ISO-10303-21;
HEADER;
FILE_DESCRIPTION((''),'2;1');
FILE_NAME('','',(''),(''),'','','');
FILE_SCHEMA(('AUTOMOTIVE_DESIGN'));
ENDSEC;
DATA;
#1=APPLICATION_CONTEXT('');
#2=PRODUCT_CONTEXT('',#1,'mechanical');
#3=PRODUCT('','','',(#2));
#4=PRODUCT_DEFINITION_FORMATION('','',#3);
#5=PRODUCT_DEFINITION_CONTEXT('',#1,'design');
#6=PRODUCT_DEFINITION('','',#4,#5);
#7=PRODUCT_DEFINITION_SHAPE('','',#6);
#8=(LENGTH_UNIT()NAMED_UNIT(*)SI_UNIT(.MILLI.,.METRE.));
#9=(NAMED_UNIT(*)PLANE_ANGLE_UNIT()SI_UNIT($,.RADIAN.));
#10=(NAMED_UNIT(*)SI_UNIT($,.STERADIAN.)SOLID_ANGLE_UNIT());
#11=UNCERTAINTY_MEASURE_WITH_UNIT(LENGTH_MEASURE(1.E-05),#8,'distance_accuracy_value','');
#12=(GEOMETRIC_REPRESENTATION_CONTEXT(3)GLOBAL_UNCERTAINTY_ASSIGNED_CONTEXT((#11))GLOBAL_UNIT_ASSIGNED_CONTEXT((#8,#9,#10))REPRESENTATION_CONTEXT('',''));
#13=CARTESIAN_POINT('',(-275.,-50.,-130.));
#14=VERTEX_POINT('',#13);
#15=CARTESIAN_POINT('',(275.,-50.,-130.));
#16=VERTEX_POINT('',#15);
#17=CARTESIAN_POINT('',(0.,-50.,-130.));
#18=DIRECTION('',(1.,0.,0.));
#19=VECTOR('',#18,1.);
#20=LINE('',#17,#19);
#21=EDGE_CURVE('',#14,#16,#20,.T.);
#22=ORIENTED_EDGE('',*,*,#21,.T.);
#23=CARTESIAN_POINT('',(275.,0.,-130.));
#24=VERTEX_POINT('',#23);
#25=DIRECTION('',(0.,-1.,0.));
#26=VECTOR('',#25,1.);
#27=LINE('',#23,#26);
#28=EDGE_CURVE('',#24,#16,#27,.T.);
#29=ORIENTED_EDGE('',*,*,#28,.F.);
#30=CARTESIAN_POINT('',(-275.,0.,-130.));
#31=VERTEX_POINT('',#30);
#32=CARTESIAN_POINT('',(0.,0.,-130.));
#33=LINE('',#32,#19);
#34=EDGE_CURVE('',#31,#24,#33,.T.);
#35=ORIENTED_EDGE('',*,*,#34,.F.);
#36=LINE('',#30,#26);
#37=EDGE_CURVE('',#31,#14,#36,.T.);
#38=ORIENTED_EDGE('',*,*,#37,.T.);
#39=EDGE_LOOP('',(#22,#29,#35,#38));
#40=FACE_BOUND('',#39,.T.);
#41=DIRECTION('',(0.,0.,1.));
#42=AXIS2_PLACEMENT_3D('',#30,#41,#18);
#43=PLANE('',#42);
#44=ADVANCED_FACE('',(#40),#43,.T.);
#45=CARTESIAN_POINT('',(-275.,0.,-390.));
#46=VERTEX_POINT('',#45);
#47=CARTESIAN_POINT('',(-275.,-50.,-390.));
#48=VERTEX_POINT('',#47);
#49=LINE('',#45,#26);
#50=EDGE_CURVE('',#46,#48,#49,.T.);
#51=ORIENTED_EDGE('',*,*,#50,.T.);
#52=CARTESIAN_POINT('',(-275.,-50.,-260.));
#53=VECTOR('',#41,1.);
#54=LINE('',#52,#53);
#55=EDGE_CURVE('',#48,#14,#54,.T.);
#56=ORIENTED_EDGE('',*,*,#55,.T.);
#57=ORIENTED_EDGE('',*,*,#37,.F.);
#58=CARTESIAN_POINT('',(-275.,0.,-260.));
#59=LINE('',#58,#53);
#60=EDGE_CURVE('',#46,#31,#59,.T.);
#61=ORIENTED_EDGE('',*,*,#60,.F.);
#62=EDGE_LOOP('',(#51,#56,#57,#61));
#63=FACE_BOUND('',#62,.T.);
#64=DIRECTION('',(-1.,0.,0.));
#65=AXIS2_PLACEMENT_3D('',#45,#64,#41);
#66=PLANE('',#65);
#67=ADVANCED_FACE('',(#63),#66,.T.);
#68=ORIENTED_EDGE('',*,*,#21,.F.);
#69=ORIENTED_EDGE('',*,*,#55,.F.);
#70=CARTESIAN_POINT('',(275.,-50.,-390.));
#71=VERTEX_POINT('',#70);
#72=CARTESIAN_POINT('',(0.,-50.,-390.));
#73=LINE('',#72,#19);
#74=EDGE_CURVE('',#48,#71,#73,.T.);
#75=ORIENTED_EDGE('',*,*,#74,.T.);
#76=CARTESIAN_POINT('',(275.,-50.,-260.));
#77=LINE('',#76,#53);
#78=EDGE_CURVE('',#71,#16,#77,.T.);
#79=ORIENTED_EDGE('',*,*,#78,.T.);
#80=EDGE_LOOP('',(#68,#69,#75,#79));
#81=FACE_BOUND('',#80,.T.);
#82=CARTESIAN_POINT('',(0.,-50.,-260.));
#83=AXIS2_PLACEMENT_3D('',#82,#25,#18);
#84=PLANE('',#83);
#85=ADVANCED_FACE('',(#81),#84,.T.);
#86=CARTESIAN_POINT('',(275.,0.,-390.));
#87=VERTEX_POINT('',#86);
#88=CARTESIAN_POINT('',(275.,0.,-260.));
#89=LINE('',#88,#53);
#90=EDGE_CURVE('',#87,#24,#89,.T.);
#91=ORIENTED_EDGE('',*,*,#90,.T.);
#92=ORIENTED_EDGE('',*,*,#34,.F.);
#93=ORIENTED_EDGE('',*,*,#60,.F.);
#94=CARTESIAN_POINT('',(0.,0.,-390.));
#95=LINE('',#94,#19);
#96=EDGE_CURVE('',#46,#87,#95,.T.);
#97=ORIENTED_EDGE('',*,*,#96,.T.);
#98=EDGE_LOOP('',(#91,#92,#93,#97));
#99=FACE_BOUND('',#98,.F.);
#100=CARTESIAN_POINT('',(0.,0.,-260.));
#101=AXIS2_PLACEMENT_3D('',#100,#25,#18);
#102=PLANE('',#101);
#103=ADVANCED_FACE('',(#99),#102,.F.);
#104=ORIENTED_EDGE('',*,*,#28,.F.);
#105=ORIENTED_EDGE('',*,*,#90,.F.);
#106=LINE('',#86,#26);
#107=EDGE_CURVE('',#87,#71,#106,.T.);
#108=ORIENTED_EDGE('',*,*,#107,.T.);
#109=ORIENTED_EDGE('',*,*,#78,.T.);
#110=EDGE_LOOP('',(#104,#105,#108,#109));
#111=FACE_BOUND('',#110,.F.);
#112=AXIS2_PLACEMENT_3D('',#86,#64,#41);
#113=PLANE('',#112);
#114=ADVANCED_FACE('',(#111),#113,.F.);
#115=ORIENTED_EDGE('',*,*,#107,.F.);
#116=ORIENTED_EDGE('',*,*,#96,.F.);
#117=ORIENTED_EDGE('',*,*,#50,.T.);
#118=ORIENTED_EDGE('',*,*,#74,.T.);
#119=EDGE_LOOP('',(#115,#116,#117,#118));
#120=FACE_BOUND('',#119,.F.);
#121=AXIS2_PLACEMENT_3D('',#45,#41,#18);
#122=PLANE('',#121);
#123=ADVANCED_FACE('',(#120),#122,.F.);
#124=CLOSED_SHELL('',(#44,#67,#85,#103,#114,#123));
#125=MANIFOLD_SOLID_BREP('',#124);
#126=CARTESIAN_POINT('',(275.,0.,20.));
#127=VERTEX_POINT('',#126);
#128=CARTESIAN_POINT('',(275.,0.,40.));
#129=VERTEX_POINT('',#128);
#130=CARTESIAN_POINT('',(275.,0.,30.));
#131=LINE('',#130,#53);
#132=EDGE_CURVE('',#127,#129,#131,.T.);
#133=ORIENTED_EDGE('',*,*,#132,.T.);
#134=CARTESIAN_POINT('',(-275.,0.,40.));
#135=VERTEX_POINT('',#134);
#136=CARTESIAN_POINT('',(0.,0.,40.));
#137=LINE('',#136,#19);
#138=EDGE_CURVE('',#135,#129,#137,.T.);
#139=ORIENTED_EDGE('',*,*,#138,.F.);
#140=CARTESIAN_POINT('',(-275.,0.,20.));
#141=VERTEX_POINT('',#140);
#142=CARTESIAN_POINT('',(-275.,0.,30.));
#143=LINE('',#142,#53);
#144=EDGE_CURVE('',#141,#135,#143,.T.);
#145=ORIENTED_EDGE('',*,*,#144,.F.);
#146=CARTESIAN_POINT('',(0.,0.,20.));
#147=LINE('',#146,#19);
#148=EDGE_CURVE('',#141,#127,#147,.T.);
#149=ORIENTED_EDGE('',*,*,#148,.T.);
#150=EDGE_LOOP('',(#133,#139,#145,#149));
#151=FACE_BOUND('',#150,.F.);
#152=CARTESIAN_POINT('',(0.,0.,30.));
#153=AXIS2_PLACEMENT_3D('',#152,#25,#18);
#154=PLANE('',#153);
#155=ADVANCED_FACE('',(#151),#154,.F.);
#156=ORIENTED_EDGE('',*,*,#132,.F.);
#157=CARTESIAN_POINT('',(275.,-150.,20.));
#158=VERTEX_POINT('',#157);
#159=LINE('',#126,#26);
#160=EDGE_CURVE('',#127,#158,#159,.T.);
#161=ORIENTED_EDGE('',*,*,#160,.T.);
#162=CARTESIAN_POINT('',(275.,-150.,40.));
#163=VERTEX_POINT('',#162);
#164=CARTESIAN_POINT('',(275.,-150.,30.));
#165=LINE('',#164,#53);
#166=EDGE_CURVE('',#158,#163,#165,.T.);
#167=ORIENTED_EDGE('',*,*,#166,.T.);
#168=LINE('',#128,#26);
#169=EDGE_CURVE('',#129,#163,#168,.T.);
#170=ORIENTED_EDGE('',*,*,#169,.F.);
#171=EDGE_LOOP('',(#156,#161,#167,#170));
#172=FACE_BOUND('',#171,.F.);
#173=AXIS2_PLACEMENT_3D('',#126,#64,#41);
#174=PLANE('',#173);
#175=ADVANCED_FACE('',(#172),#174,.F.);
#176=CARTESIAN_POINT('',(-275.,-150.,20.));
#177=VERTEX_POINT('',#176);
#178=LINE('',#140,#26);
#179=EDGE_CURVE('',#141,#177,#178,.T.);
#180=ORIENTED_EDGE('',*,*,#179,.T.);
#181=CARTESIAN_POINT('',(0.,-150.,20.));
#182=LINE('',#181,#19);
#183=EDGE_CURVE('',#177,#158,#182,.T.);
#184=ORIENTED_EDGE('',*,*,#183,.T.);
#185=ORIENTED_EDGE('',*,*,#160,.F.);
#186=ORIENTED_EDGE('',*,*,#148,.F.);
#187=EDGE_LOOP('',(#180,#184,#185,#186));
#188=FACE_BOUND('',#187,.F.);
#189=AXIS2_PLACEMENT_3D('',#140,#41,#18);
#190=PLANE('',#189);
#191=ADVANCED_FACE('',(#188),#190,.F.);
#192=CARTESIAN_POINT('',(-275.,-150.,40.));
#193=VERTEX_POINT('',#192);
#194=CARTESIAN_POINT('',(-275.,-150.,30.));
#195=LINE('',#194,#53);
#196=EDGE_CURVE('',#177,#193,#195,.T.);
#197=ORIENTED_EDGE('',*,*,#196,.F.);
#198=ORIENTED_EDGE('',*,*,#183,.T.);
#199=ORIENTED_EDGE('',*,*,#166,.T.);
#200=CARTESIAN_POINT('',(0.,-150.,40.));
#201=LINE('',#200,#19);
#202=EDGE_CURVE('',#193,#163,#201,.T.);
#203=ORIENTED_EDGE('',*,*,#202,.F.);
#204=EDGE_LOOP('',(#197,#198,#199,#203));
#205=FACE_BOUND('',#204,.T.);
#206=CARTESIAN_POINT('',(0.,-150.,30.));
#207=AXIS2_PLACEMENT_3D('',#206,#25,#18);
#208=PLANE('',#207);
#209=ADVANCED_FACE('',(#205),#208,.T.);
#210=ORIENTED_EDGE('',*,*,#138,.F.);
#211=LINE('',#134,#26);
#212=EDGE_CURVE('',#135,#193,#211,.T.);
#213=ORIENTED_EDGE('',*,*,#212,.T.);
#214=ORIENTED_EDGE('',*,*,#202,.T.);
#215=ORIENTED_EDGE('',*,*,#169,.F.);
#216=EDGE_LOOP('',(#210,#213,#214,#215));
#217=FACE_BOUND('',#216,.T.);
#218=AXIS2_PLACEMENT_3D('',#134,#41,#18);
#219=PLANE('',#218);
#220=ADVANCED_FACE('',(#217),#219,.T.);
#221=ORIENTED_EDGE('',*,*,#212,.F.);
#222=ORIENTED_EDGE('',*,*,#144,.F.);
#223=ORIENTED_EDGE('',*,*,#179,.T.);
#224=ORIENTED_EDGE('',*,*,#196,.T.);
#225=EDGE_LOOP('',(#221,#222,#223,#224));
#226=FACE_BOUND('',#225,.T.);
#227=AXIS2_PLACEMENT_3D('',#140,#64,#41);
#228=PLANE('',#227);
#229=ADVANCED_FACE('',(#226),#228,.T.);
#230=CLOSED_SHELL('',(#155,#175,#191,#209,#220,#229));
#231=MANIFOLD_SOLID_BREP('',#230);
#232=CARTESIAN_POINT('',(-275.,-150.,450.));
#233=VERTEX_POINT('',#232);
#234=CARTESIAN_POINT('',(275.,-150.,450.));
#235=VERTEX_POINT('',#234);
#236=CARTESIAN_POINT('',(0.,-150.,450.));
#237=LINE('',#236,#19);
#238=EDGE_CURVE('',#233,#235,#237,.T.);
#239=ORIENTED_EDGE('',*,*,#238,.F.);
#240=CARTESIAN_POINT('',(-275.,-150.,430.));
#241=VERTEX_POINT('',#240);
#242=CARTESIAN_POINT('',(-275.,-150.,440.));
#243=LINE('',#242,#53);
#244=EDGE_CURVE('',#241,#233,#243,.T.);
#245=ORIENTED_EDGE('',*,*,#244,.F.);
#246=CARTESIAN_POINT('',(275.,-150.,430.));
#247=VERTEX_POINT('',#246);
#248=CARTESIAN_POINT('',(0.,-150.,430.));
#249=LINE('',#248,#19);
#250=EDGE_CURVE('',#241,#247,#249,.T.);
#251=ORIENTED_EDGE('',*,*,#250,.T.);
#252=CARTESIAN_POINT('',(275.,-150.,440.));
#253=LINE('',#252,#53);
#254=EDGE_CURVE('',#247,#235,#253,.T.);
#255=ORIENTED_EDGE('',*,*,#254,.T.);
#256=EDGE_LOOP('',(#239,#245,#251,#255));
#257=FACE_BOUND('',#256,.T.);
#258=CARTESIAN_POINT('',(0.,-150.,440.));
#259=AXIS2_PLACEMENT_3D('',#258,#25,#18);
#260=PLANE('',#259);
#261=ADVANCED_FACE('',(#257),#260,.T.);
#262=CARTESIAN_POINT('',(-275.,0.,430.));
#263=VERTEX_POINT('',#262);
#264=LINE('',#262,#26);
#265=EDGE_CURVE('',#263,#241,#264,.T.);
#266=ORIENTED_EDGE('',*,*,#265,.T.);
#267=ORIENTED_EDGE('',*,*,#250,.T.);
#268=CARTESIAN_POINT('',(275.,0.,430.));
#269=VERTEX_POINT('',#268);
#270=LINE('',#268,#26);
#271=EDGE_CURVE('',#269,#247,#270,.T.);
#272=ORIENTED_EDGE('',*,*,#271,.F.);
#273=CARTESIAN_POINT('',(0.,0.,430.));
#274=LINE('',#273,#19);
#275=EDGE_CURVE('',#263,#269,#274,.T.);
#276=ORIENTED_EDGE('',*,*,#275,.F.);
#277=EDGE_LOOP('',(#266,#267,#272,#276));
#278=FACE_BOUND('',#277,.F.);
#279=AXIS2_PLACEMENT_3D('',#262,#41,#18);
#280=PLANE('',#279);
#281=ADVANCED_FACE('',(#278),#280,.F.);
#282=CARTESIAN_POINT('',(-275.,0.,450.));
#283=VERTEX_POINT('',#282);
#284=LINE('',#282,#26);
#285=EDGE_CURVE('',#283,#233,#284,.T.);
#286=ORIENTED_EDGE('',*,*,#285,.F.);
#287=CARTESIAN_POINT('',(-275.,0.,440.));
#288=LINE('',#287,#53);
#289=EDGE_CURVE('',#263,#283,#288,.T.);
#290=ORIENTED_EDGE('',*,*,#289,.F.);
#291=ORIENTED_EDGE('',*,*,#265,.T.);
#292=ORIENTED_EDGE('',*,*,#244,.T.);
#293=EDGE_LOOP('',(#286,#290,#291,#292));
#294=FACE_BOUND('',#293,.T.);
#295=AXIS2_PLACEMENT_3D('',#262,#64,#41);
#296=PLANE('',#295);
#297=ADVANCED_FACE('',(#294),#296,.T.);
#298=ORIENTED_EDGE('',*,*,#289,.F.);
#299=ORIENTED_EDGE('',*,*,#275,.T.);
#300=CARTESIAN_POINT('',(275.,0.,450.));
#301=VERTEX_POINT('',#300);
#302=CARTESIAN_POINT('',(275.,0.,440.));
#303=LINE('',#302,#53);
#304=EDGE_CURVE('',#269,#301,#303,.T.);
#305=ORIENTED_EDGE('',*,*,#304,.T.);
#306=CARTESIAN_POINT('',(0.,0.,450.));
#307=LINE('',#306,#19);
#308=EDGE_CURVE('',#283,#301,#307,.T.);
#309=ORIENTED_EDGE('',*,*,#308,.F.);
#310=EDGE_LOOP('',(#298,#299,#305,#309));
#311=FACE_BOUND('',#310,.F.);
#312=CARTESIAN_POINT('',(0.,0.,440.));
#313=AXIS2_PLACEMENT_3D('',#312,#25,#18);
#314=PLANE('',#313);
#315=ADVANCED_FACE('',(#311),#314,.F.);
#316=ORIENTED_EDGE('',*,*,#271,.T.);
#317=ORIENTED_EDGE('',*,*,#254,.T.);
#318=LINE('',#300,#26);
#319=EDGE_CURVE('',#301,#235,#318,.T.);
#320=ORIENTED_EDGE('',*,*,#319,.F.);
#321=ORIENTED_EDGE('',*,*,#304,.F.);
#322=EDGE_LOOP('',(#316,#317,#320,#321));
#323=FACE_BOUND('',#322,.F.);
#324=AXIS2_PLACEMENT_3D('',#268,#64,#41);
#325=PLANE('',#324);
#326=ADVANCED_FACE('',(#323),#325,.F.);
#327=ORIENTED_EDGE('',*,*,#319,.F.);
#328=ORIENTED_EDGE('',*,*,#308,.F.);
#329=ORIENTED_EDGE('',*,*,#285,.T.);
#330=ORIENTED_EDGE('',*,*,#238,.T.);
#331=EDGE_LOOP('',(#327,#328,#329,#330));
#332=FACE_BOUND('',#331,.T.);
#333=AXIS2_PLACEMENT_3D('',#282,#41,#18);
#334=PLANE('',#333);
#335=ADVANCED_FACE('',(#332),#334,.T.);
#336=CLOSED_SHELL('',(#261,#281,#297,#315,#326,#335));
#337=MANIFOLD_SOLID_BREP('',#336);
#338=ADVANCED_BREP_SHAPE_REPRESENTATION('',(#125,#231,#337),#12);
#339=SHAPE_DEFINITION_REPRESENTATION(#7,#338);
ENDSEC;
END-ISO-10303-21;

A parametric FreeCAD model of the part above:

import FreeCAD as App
import Part
import Sketcher

V = App.Vector


def add_polygon(sketch, points):
    """Adds a closed chain of lines whose ends are joined by coincident constraints."""
    first, n = sketch.GeometryCount, len(points)
    for a, b in zip(points, points[1:] + points[:1]):
        sketch.addGeometry(Part.LineSegment(App.Vector(*a, 0), App.Vector(*b, 0)), False)
    for i in range(n):
        sketch.addConstraint(Sketcher.Constraint("Coincident", first + i, 2, first + (i + 1) % n, 1))

doc = App.newDocument("Part")
params = doc.addObject("Spreadsheet::Sheet", "Params")
for row, (alias, value) in enumerate([
    ("sketch1_width", "550 mm"),
    ("sketch1_height", "20 mm"),
    ("pad1_length", "150 mm"),
    ("sketch2_width", "550 mm"),
    ("sketch2_height", "260 mm"),
    ("pad2_length", "50 mm"),
], start=1):
    params.set(f"A{row}", alias)
    params.set(f"B{row}", "=" + value)
    params.setAlias(f"B{row}", alias)

body = doc.addObject("PartDesign::Body", "Body")
body.AllowCompound = True

# Sketch on XZ plane
sketch1 = body.newObject("Sketcher::SketchObject", "Sketch")
sketch1.AttachmentSupport = (doc.getObject("XZ_Plane"), [""])
sketch1.MapMode = "FlatFace"
add_polygon(sketch1, [(-275, 450), (-275, 430), (275, 430), (275, 450)])  # lines 0-3
add_polygon(sketch1, [(-275, 40), (-275, 20), (275, 20), (275, 40)])  # lines 4-7
sketch1.addConstraint([
    Sketcher.Constraint("Vertical", 0),
    Sketcher.Constraint("Horizontal", 1),
    Sketcher.Constraint("Vertical", 2),
    Sketcher.Constraint("Horizontal", 3),
    Sketcher.Constraint("Vertical", 4),
    Sketcher.Constraint("Horizontal", 5),
    Sketcher.Constraint("Vertical", 6),
    Sketcher.Constraint("Horizontal", 7),
    Sketcher.Constraint("Vertical", 3, 2, 4, 2),
    Sketcher.Constraint("Vertical", 2, 2, 5, 2),
    Sketcher.Constraint("Equal", 2, 4),
    Sketcher.Constraint("DistanceX", 1, 1, 1, 2, 550.0),
    Sketcher.Constraint("DistanceY", 0, 2, 0, 1, 20.0),
    Sketcher.Constraint("DistanceX", 0, 2, -1, 1, 275.0),
    Sketcher.Constraint("DistanceY", -1, 1, 0, 2, 430.0),
    Sketcher.Constraint("DistanceY", -1, 1, 4, 2, 20.0),
])
sketch1.setExpression("Constraints[19]", "Params.sketch1_width")
sketch1.setExpression("Constraints[20]", "Params.sketch1_height")
pad1 = body.newObject("PartDesign::Pad", "Pad")
pad1.Profile = sketch1
pad1.setExpression("Length", "Params.pad1_length")
body2 = doc.addObject("PartDesign::Body", "Body001")

# Sketch on XZ plane
sketch2 = body2.newObject("Sketcher::SketchObject", "Sketch001")
sketch2.AttachmentSupport = (doc.getObject("XZ_Plane001"), [""])
sketch2.MapMode = "FlatFace"
add_polygon(sketch2, [(-275, -130), (-275, -390), (275, -390), (275, -130)])  # lines 0-3
sketch2.addConstraint([
    Sketcher.Constraint("Vertical", 0),
    Sketcher.Constraint("Horizontal", 1),
    Sketcher.Constraint("Vertical", 2),
    Sketcher.Constraint("Horizontal", 3),
    Sketcher.Constraint("DistanceX", 1, 1, 1, 2, 550.0),
    Sketcher.Constraint("DistanceY", 0, 2, 0, 1, 260.0),
    Sketcher.Constraint("DistanceX", 0, 2, -1, 1, 275.0),
    Sketcher.Constraint("DistanceY", 0, 2, -1, 1, 390.0),
])
sketch2.setExpression("Constraints[8]", "Params.sketch2_width")
sketch2.setExpression("Constraints[9]", "Params.sketch2_height")
pad2 = body2.newObject("PartDesign::Pad", "Pad001")
pad2.Profile = sketch2
pad2.setExpression("Length", "Params.pad2_length")

doc.recompute()
